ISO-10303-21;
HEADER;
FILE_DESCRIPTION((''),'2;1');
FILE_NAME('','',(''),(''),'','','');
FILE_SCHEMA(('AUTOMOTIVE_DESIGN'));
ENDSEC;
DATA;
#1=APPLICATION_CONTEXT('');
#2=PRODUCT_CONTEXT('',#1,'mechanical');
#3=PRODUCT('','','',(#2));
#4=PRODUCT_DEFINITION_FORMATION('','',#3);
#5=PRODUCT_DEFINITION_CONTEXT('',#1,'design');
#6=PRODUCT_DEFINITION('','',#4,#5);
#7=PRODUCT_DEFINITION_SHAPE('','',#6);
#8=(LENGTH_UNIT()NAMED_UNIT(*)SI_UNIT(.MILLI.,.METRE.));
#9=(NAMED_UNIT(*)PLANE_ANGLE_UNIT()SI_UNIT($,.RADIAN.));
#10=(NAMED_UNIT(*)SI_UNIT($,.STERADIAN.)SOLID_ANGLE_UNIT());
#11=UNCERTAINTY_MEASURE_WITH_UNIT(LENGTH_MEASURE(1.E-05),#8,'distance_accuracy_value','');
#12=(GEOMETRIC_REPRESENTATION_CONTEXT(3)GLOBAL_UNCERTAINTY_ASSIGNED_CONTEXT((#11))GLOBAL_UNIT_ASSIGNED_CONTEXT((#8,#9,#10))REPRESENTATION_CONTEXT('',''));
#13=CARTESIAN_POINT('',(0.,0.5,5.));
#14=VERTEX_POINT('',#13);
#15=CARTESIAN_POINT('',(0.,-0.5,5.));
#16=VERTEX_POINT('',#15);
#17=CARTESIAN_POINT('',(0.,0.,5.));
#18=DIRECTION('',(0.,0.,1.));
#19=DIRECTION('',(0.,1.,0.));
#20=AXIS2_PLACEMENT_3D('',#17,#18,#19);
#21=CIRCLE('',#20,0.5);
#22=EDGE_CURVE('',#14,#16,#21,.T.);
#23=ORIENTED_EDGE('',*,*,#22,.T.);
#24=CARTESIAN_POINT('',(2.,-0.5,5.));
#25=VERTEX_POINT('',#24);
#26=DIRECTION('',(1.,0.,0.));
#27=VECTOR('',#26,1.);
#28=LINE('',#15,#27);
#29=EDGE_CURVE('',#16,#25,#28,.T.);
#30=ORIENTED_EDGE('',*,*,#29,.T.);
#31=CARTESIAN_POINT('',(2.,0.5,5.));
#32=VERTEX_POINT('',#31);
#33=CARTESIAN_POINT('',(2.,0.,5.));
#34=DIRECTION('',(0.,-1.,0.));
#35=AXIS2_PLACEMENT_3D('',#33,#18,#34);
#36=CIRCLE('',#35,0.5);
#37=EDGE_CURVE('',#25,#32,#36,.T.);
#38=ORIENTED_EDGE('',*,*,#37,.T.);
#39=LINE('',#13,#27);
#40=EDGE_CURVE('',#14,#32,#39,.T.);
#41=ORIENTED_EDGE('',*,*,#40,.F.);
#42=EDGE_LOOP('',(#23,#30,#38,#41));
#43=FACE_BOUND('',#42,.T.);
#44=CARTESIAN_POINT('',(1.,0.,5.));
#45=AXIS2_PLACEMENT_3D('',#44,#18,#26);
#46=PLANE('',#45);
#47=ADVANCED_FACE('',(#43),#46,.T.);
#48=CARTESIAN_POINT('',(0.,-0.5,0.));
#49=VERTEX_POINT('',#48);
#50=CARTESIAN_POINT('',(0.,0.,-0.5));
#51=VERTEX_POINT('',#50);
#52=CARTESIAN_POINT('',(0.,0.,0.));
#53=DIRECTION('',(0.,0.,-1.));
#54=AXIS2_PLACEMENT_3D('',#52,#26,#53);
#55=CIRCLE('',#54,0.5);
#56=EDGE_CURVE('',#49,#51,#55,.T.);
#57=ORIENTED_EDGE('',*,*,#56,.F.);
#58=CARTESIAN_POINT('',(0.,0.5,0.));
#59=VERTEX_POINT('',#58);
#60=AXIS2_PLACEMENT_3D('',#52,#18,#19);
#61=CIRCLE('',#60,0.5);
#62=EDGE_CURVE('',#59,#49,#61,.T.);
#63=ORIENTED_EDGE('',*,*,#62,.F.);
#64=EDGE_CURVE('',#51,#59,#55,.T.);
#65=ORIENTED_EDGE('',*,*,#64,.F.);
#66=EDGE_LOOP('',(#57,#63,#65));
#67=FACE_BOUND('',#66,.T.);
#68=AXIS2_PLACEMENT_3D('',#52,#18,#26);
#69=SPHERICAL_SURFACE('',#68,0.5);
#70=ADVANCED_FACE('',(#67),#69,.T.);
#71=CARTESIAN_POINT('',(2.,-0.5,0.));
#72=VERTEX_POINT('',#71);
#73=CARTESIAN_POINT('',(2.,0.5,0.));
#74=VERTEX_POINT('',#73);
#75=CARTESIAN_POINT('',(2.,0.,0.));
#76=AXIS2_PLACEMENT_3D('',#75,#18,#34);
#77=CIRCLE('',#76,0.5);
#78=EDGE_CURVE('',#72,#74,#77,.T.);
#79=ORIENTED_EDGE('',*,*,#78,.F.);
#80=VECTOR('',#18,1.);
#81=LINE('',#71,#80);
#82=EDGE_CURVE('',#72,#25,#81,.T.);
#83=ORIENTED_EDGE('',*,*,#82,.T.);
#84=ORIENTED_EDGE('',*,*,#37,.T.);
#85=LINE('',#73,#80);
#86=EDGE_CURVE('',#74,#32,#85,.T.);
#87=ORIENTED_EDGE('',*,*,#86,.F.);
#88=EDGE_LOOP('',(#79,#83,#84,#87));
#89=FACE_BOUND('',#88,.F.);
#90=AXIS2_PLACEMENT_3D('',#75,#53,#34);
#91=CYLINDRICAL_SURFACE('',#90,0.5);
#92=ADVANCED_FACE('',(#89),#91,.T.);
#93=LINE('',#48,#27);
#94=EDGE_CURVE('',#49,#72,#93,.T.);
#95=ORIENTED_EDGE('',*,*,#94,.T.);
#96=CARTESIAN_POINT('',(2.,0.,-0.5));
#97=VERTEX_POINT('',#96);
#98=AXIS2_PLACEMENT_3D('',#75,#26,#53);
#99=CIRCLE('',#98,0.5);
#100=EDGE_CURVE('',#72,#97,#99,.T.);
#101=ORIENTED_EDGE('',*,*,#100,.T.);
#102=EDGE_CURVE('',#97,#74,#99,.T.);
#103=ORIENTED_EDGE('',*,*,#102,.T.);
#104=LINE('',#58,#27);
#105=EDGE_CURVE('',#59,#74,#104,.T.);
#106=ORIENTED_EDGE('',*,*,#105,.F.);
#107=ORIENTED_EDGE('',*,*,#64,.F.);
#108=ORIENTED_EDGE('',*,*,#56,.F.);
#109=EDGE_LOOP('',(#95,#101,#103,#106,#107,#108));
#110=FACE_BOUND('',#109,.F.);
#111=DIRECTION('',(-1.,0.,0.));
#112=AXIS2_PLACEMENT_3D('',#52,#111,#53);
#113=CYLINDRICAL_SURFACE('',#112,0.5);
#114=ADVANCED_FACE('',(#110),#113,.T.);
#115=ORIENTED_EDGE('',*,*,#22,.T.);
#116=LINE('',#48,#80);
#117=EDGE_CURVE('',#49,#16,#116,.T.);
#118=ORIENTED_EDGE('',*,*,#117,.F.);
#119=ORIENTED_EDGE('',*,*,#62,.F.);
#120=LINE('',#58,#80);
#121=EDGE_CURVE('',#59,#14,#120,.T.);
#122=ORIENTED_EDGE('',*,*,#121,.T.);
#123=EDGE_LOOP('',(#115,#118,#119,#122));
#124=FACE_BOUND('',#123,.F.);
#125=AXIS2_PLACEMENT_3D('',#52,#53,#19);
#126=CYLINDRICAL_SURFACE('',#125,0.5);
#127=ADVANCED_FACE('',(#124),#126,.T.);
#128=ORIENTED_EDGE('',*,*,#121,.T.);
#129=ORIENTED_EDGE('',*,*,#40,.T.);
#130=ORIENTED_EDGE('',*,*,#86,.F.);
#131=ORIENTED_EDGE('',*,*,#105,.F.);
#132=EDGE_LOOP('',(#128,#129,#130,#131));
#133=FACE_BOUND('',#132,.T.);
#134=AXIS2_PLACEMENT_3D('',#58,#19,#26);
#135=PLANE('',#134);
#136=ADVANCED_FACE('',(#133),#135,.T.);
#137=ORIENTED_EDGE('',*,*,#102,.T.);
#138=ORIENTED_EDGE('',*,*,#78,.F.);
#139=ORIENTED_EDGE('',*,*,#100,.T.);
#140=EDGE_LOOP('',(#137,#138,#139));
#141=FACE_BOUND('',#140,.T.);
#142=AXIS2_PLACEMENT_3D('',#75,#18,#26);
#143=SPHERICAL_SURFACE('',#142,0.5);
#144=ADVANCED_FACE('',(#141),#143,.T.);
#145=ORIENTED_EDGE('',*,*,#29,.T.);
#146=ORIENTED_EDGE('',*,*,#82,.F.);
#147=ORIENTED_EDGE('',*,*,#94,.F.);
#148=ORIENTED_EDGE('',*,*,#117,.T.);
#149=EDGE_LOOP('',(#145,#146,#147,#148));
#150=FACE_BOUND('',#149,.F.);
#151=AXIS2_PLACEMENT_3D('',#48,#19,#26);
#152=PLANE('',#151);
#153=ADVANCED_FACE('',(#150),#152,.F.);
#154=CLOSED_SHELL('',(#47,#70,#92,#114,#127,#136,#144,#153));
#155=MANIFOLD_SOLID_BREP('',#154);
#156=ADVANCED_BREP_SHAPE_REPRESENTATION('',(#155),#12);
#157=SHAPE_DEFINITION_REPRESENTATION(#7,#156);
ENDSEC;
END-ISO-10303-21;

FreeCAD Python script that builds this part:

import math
import FreeCAD as App
import Part
import Sketcher

V = App.Vector

doc = App.newDocument("Part")
body = doc.addObject("PartDesign::Body", "Body")

sketch1 = doc.addObject("Sketcher::SketchObject", "Sketch")
body.addObject(sketch1)
sketch1.AttachmentSupport = (doc.XZ_Plane, [""])
sketch1.MapMode = "FlatFace"
sketch1.addGeometry([
    Part.ArcOfCircle(Part.Circle(V(0, 0, 0), V(0, 0, 1), 0.5), math.radians(-90), math.radians(90)),
    Part.LineSegment(V(0, 0.5, 0), V(0, -0.5, 0)),
], False)
sketch1.addConstraint([
    Sketcher.Constraint("Coincident", 0, 1, 1, 2),
    Sketcher.Constraint("Coincident", 1, 1, 0, 2),
    Sketcher.Constraint("Vertical", 1),
    Sketcher.Constraint("Coincident", 0, 3, -1, 1),
    Sketcher.Constraint("PointOnObject", 0, 1, -2),
    Sketcher.Constraint("Radius", 0, 0.5),
])
revolution = doc.addObject("PartDesign::Revolution", "Revolution")
body.addObject(revolution)
revolution.Profile = sketch1
revolution.ReferenceAxis = (sketch1, ["V_Axis"])
revolution.Angle = 360
body2 = doc.addObject("PartDesign::Body", "Body001")

sketch2 = doc.addObject("Sketcher::SketchObject", "Sketch001")
body2.addObject(sketch2)
sketch2.AttachmentSupport = (doc.getObject("XZ_Plane001"), [""])
sketch2.MapMode = "FlatFace"
sketch2.addGeometry([
    Part.ArcOfCircle(Part.Circle(V(2, 0, 0), V(0, 0, 1), 0.5), math.radians(-90), math.radians(90)),
    Part.LineSegment(V(2, 0.5, 0), V(2, -0.5, 0)),
], False)
sketch2.addGeometry(Part.LineSegment(V(2, -0.5, 0), V(2, 0.5, 0)), True)
sketch2.addConstraint([
    Sketcher.Constraint("Coincident", 0, 1, 1, 2),
    Sketcher.Constraint("Coincident", 1, 1, 0, 2),
    Sketcher.Constraint("Vertical", 1),
    Sketcher.Constraint("Vertical", 2),
    Sketcher.Constraint("Coincident", 2, 1, 0, 1),
    Sketcher.Constraint("PointOnObject", 0, 3, -1),
    Sketcher.Constraint("Equal", 1, 2),
    Sketcher.Constraint("Radius", 0, 0.5),
    Sketcher.Constraint("DistanceX", -1, 1, 0, 3, 2.0),
    Sketcher.Constraint("DistanceX", -1, 1, 0, 1, 2.0),
])
revolution2 = doc.addObject("PartDesign::Revolution", "Revolution001")
body2.addObject(revolution2)
revolution2.Profile = sketch2
revolution2.ReferenceAxis = (sketch2, ["Axis0"])
revolution2.Angle = 360
body3 = doc.addObject("PartDesign::Body", "Body002")

sketch3 = doc.addObject("Sketcher::SketchObject", "Sketch002")
body3.addObject(sketch3)
sketch3.AttachmentSupport = (doc.getObject("YZ_Plane002"), [""])
sketch3.MapMode = "FlatFace"
sketch3.addGeometry(Part.Circle(V(0, 0, 0), V(0, 0, 1), 0.5), False)
sketch3.addConstraint([
    Sketcher.Constraint("Coincident", 0, 3, -1, 1),
    Sketcher.Constraint("Diameter", 0, 1.0),
])
pad1 = doc.addObject("PartDesign::Pad", "Pad")
body3.addObject(pad1)
pad1.Profile = sketch3
pad1.Length = 2
doc.recompute()

boolean = doc.addObject("PartDesign::Boolean", "Boolean")
body3.addObject(boolean)
boolean.Type = "Fuse"
boolean.addObjects([body])
doc.recompute()

boolean2 = doc.addObject("PartDesign::Boolean", "Boolean001")
body3.addObject(boolean2)
boolean2.Type = "Fuse"
boolean2.addObjects([body2])

sketch4 = doc.addObject("Sketcher::SketchObject", "Sketch003")
body3.addObject(sketch4)
sketch4.AttachmentSupport = (doc.getObject("XY_Plane002"), [""])
sketch4.MapMode = "FlatFace"
sketch4.addGeometry([
    Part.ArcOfCircle(Part.Circle(V(0, 0, 0), V(0, 0, 1), 0.5), math.radians(90), math.radians(270)),
    Part.LineSegment(V(0, -0.5, 0), V(2, -0.5, 0)),
    Part.ArcOfCircle(Part.Circle(V(2, 0, 0), V(0, 0, 1), 0.5), math.radians(-90), math.radians(90)),
    Part.LineSegment(V(2, 0.5, 0), V(0, 0.5, 0)),
], False)
sketch4.addConstraint([
    Sketcher.Constraint("Tangent", 0, 2, 1, 1),
    Sketcher.Constraint("Tangent", 1, 2, 2, 1),
    Sketcher.Constraint("Tangent", 2, 2, 3, 1),
    Sketcher.Constraint("Tangent", 3, 2, 0, 1),
    Sketcher.Constraint("Horizontal", 1),
    Sketcher.Constraint("Horizontal", 3),
    Sketcher.Constraint("Coincident", 0, 3, -1, 1),
    Sketcher.Constraint("Radius", 0, 0.5),
    Sketcher.Constraint("DistanceX", 1, 1, 1, 2, 2.0),
])
pad2 = doc.addObject("PartDesign::Pad", "Pad001")
body3.addObject(pad2)
pad2.Profile = sketch4
pad2.Length = 5

doc.recompute()
